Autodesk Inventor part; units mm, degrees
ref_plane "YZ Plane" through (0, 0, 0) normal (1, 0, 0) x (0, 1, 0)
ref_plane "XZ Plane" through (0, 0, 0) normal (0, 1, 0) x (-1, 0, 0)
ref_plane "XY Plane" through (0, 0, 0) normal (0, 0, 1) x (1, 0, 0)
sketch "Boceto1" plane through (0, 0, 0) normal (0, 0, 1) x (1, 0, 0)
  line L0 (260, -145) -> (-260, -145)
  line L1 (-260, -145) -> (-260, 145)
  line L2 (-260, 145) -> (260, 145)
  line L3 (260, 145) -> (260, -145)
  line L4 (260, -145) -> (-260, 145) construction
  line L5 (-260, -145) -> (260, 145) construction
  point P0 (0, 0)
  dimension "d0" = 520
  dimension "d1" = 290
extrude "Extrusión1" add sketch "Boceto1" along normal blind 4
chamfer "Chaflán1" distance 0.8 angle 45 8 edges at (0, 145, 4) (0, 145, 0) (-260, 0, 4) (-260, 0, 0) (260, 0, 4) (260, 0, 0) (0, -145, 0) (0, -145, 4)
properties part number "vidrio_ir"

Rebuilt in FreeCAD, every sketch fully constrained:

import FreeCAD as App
import Part
import Sketcher


def edges_at(feature, points):
    """Names of the edges that pass closest to the given points."""
    edges = feature.Shape.Edges
    near = lambda p: min(range(len(edges)), key=lambda i: edges[i].distToShape(Part.Vertex(*p))[0])
    return sorted({f"Edge{near(p) + 1}" for p in points})


def add_polygon(sketch, points):
    """Adds a closed chain of lines whose ends are joined by coincident constraints."""
    first, n = sketch.GeometryCount, len(points)
    for a, b in zip(points, points[1:] + points[:1]):
        sketch.addGeometry(Part.LineSegment(App.Vector(*a, 0), App.Vector(*b, 0)), False)
    for i in range(n):
        sketch.addConstraint(Sketcher.Constraint("Coincident", first + i, 2, first + (i + 1) % n, 1))

doc = App.newDocument("Part")
body = doc.addObject("PartDesign::Body", "Body")

sketch1 = body.newObject("Sketcher::SketchObject", "Sketch")
sketch1.AttachmentSupport = (doc.getObject("XY_Plane"), [""])
sketch1.MapMode = "FlatFace"
add_polygon(sketch1, [(-260, -145), (260, -145), (260, 145), (-260, 145)])
sketch1.addConstraint([
    Sketcher.Constraint("Horizontal", 0),
    Sketcher.Constraint("Vertical", 1),
    Sketcher.Constraint("Horizontal", 2),
    Sketcher.Constraint("Vertical", 3),
    Sketcher.Constraint("Symmetric", 0, 2, 2, 2, -1, 1),
    Sketcher.Constraint("DistanceX", 0, 1, 0, 2, 520.0),
    Sketcher.Constraint("DistanceY", 1, 1, 1, 2, 290.0),
])
pad1 = body.newObject("PartDesign::Pad", "Pad")
pad1.Profile = sketch1
pad1.Length = 4
doc.recompute()

chamfer = body.newObject("PartDesign::Chamfer", "Chamfer")
chamfer.Base = (pad1, edges_at(pad1, [
    (0, 145, 4),
    (0, 145, 0),
    (-260, 0, 4),
    (-260, 0, 0),
    (260, 0, 4),
    (260, 0, 0),
    (0, -145, 0),
    (0, -145, 4),
]))
chamfer.Size = 0.8

doc.recompute()
